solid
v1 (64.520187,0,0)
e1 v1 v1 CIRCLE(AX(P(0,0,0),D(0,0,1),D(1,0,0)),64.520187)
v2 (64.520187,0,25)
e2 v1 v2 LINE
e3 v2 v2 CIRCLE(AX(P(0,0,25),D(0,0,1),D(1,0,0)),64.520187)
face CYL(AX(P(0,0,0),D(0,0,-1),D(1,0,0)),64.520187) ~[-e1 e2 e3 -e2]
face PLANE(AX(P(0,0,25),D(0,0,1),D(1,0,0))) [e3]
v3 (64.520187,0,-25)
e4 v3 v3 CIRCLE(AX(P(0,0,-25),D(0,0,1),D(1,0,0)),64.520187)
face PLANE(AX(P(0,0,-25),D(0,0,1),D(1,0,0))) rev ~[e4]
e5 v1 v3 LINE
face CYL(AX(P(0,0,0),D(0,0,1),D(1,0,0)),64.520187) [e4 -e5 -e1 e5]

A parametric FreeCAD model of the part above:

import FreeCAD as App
import Part
import Sketcher
Q = App.Units.Quantity

doc = App.newDocument("Part")
params = doc.addObject("Spreadsheet::Sheet", "Params")
for row, (alias, value) in enumerate([
    ("pad1_length", "25 mm"),
    ("pad1_length2", "25 mm"),
], start=1):
    params.set(f"A{row}", alias)
    params.set(f"B{row}", "=" + value)
    params.setAlias(f"B{row}", alias)

body = doc.addObject("PartDesign::Body", "Body")

sketch1 = doc.addObject("Sketcher::SketchObject", "Sketch")
body.addObject(sketch1)
sketch1.AttachmentSupport = (doc.XY_Plane, [""])
sketch1.MapMode = "FlatFace"
sketch1.addGeometry(Part.Circle(App.Vector(0, 0, 0), App.Vector(0, 0, 1), 65), False)
sketch1.addConstraint([
    Sketcher.Constraint("Coincident", 0, 3, -1, 1),
    Sketcher.Constraint("Diameter", 0, Q("129.040375 mm")),
])
pad1 = doc.addObject("PartDesign::Pad", "Pad")
body.addObject(pad1)
pad1.Profile = sketch1
pad1.Type = "TwoLengths"
pad1.setExpression("Length", "Params.pad1_length")
pad1.setExpression("Length2", "Params.pad1_length2")
pad1.Reversed = True

doc.recompute()
